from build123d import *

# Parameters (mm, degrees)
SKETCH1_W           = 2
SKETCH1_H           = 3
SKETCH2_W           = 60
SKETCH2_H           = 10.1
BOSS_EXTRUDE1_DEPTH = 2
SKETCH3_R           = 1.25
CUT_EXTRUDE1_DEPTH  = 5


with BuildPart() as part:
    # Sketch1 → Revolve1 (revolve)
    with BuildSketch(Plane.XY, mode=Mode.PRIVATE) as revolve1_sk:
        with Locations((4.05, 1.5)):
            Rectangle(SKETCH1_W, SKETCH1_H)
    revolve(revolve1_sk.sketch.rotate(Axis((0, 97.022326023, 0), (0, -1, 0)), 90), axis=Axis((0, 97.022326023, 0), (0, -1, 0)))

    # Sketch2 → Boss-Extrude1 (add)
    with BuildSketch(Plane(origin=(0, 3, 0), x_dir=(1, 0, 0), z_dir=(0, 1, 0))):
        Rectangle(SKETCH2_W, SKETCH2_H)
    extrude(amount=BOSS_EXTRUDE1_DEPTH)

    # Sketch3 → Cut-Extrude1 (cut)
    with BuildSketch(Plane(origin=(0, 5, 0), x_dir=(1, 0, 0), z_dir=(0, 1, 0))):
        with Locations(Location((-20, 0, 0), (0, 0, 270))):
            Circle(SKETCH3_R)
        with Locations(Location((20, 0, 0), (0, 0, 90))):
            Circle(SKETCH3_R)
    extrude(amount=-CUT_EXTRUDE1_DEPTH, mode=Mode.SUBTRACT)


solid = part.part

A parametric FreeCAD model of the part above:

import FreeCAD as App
import Part
import Sketcher
from FreeCAD import Vector


def add_polygon(sketch, points):
    """Adds a closed chain of lines whose ends are joined by coincident constraints."""
    first, n = sketch.GeometryCount, len(points)
    for a, b in zip(points, points[1:] + points[:1]):
        sketch.addGeometry(Part.LineSegment(App.Vector(*a, 0), App.Vector(*b, 0)), False)
    for i in range(n):
        sketch.addConstraint(Sketcher.Constraint("Coincident", first + i, 2, first + (i + 1) % n, 1))

doc = App.newDocument("Part")
body = doc.addObject("PartDesign::Body", "Body")

# Sketch on XY plane
sketch1 = body.newObject("Sketcher::SketchObject", "Sketch")
sketch1.AttachmentSupport = (doc.getObject("XY_Plane"), [""])
sketch1.MapMode = "FlatFace"
add_polygon(sketch1, [(3, 3), (3, 0), (5, 0), (5, 3)])  # lines 0-3
sketch1.addConstraint([
    Sketcher.Constraint("Vertical", 0),
    Sketcher.Constraint("Horizontal", 1),
    Sketcher.Constraint("Vertical", 2),
    Sketcher.Constraint("Horizontal", 3),
    Sketcher.Constraint("PointOnObject", 0, 2, -1),
    Sketcher.Constraint("DistanceX", 1, 1, 1, 2, 2.0),
    Sketcher.Constraint("DistanceY", 0, 2, 0, 1, 3.0),
    Sketcher.Constraint("DistanceX", -1, 1, 0, 2, 3.05),
])
revolution = body.newObject("PartDesign::Revolution", "Revolution")
revolution.Profile = sketch1
revolution.ReferenceAxis = (sketch1, ["V_Axis"])
revolution.Angle = 360

# Sketch on XZ plane
sketch2 = body.newObject("Sketcher::SketchObject", "Sketch001")
sketch2.AttachmentSupport = (doc.getObject("XZ_Plane"), [""])
sketch2.MapMode = "FlatFace"
sketch2.AttachmentOffset = App.Placement(Vector(0, 0, -3), App.Rotation())
add_polygon(sketch2, [(-30, -5), (-30, 5), (30, 5), (30, -5)])  # lines 0-3
sketch2.addConstraint([
    Sketcher.Constraint("Vertical", 0),
    Sketcher.Constraint("Horizontal", 1),
    Sketcher.Constraint("Vertical", 2),
    Sketcher.Constraint("Horizontal", 3),
    Sketcher.Constraint("Symmetric", 0, 2, 2, 2, -1, 1),
    Sketcher.Constraint("DistanceX", 1, 1, 1, 2, 60.0),
    Sketcher.Constraint("DistanceY", 0, 1, 0, 2, 10.1),
])
pad1 = body.newObject("PartDesign::Pad", "Pad")
pad1.Profile = sketch2
pad1.Length = 2
pad1.Reversed = True

# Sketch on XZ plane
sketch3 = body.newObject("Sketcher::SketchObject", "Sketch002")
sketch3.AttachmentSupport = (doc.getObject("XZ_Plane"), [""])
sketch3.MapMode = "FlatFace"
sketch3.AttachmentOffset = App.Placement(Vector(0, 0, -5), App.Rotation())
sketch3.addGeometry([
    Part.Circle(Vector(-20, 0, 0), Vector(0, 0, 1), 1.2),
    Part.Circle(Vector(20, 0, 0), Vector(0, 0, 1), 1.2),
], False)
sketch3.addConstraint([
    Sketcher.Constraint("Equal", 0, 1),
    Sketcher.Constraint("Symmetric", 0, 3, 1, 3, -1, 1),
    Sketcher.Constraint("PointOnObject", 0, 3, -1),
    Sketcher.Constraint("Diameter", 0, 2.5),
    Sketcher.Constraint("DistanceX", 0, 3, -1, 1, 20.0),
])
pocket1 = body.newObject("PartDesign::Pocket", "Pocket")
pocket1.Profile = sketch3
pocket1.Length = 5
pocket1.Reversed = True

doc.recompute()
